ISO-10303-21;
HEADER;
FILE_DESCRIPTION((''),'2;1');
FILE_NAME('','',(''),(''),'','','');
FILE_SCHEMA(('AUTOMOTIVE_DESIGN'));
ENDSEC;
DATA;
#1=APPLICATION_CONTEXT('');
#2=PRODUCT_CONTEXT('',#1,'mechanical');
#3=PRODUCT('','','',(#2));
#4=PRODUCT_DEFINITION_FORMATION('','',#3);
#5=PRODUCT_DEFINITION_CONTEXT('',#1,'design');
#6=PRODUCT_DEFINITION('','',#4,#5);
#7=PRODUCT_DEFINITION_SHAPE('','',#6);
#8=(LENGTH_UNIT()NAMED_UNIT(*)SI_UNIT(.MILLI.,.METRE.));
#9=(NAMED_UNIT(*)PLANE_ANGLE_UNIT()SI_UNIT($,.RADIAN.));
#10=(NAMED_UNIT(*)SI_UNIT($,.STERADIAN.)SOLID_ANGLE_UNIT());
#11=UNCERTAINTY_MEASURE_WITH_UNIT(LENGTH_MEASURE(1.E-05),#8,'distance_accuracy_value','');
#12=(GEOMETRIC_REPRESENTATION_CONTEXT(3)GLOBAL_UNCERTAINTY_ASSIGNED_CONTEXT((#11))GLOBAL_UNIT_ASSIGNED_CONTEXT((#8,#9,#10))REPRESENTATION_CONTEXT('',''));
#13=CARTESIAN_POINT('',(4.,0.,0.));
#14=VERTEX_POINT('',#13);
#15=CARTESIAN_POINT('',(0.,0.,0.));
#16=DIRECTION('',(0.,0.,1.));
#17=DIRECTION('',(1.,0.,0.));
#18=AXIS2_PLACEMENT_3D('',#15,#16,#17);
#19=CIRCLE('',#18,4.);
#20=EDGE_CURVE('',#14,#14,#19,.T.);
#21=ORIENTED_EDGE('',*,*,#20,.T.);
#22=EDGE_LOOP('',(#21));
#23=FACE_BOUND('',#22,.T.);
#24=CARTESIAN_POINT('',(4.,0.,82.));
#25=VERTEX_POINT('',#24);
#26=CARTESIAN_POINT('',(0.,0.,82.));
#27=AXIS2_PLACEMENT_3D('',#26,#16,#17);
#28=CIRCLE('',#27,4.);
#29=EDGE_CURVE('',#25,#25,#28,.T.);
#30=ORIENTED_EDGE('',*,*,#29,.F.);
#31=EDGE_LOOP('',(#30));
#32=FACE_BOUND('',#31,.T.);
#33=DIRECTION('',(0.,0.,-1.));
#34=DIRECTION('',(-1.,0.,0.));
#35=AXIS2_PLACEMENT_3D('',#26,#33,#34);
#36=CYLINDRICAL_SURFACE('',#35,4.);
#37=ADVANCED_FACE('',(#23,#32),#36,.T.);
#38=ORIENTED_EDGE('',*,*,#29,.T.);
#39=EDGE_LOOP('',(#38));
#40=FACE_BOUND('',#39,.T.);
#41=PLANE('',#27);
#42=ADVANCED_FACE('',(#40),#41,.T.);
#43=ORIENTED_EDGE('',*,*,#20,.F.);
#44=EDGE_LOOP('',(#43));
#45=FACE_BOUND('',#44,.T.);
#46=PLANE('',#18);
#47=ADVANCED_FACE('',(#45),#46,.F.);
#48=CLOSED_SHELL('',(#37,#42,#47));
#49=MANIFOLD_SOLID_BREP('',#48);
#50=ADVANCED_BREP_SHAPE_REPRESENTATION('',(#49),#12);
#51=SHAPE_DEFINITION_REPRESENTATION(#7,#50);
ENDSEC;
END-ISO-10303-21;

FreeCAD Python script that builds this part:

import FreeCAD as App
import Part
import Sketcher
from FreeCAD import Vector
Q = App.Units.Quantity

doc = App.newDocument("Part")
body = doc.addObject("PartDesign::Body", "Body")

# Sketch on XY plane
sketch1 = body.newObject("Sketcher::SketchObject", "Sketch")
sketch1.AttachmentSupport = (doc.getObject("XY_Plane"), [""])
sketch1.MapMode = "FlatFace"
sketch1.addGeometry(Part.Circle(Vector(0, 0, 0), Vector(0, 0, 1), 4), False)
sketch1.addConstraint([
    Sketcher.Constraint("Coincident", 0, 3, -1, 1),
    Sketcher.Constraint("Diameter", 0, Q("8 mm")),
])
pad1 = body.newObject("PartDesign::Pad", "Pad")
pad1.Profile = sketch1
pad1.Length = 82

doc.recompute()
